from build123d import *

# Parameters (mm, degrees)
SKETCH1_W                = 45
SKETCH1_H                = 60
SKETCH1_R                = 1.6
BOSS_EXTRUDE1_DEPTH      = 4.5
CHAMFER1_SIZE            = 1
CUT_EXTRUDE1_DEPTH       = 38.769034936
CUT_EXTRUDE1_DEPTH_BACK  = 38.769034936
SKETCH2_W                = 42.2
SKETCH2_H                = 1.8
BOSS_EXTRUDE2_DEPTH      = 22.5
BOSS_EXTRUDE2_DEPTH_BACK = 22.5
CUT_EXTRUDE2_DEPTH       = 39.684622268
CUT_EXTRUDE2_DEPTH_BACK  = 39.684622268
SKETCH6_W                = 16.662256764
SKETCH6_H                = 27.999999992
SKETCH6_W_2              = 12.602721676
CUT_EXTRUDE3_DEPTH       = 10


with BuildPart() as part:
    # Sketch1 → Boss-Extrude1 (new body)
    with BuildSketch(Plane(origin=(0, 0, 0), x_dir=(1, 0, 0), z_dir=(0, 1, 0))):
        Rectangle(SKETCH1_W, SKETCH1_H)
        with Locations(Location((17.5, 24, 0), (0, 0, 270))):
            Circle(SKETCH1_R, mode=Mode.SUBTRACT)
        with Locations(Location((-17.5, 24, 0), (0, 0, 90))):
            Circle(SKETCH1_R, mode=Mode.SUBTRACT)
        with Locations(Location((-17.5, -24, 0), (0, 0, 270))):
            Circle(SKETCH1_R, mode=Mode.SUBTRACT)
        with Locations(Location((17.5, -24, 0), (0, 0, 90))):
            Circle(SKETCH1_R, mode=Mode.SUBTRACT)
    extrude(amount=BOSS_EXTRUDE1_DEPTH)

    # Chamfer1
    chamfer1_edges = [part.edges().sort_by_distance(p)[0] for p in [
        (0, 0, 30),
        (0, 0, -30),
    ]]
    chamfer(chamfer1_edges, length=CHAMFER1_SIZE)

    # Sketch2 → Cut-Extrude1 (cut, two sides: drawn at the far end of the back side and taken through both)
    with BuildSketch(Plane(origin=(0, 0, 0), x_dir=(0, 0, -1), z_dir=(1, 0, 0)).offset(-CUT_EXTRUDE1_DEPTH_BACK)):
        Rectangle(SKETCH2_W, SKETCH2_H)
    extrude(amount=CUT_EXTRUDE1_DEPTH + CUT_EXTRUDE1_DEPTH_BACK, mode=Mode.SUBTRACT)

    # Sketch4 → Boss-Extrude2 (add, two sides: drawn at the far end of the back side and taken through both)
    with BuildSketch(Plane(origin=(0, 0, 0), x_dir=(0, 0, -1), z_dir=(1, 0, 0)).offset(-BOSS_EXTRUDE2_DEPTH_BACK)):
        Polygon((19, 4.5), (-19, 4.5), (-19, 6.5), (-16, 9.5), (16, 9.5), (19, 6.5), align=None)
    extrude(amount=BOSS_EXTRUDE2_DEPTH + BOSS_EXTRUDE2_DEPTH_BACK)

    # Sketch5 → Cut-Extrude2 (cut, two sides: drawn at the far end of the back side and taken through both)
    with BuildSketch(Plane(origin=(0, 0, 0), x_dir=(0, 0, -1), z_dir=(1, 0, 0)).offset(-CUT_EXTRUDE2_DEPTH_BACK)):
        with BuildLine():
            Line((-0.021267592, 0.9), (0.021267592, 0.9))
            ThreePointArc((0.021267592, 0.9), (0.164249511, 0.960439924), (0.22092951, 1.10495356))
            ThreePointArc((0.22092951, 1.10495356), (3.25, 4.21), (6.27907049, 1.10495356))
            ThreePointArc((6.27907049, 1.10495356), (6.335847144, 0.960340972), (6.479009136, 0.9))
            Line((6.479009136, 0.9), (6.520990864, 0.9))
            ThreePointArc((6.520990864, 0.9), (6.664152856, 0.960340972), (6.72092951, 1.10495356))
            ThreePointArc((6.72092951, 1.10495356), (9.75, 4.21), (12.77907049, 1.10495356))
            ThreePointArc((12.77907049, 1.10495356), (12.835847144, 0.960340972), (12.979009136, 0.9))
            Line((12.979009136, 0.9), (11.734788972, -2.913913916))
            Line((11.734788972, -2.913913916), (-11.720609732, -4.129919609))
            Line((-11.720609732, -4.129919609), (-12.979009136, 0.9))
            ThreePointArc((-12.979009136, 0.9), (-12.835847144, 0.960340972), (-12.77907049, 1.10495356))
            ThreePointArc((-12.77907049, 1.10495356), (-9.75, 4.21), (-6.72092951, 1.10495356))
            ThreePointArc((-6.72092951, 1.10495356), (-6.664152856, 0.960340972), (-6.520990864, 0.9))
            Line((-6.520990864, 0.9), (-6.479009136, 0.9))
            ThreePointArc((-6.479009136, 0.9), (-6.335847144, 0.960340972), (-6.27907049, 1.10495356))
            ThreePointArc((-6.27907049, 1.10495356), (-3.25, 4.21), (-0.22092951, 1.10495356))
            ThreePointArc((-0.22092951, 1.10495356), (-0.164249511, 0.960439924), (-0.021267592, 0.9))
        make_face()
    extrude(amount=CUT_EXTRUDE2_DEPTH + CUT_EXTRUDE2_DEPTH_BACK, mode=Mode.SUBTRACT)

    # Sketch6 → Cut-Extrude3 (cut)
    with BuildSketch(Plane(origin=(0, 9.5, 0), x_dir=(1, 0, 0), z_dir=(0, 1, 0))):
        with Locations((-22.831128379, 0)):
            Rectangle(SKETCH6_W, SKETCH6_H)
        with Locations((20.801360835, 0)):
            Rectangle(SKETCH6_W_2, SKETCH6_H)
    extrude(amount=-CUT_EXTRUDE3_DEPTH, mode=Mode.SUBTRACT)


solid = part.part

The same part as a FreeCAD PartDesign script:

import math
import FreeCAD as App
import Part
import Sketcher
from FreeCAD import Vector
Q = App.Units.Quantity


def edges_at(feature, points):
    """Names of the edges that pass closest to the given points."""
    edges = feature.Shape.Edges
    near = lambda p: min(range(len(edges)), key=lambda i: edges[i].distToShape(Part.Vertex(*p))[0])
    return sorted({f"Edge{near(p) + 1}" for p in points})

doc = App.newDocument("Part")
body = doc.addObject("PartDesign::Body", "Body")

# Sketch on XZ plane
sketch1 = body.newObject("Sketcher::SketchObject", "Sketch")
sketch1.AttachmentSupport = (doc.getObject("XZ_Plane"), [""])
sketch1.MapMode = "FlatFace"
sketch1.addGeometry([
    Part.LineSegment(Vector(-22.5, -30, 0), Vector(-22.5, 30, 0)),  # 0
    Part.LineSegment(Vector(-22.5, 30, 0), Vector(22.5, 30, 0)),  # 1
    Part.LineSegment(Vector(22.5, 30, 0), Vector(22.5, -30, 0)),  # 2
    Part.LineSegment(Vector(22.5, -30, 0), Vector(-22.5, -30, 0)),  # 3
    Part.Circle(Vector(-17.5, 24, 0), Vector(0, 0, 1), 1.6),  # 4
    Part.Circle(Vector(17.5, 24, 0), Vector(0, 0, 1), 1.6),  # 5
    Part.Circle(Vector(-17.5, -24, 0), Vector(0, 0, 1), 1.6),  # 6
    Part.Circle(Vector(17.5, -24, 0), Vector(0, 0, 1), 1.6),  # 7
], False)
sketch1.addConstraint([
    Sketcher.Constraint("Coincident", 0, 2, 1, 1),
    Sketcher.Constraint("Coincident", 1, 2, 2, 1),
    Sketcher.Constraint("Coincident", 2, 2, 3, 1),
    Sketcher.Constraint("Coincident", 3, 2, 0, 1),
    Sketcher.Constraint("Vertical", 0),
    Sketcher.Constraint("Horizontal", 1),
    Sketcher.Constraint("Vertical", 2),
    Sketcher.Constraint("Horizontal", 3),
    Sketcher.Constraint("Equal", 4, 5),
    Sketcher.Constraint("Equal", 5, 6),
    Sketcher.Constraint("Equal", 6, 7),
    Sketcher.Constraint("Symmetric", 5, 3, 6, 3, -1, 1),
    Sketcher.Constraint("Symmetric", 4, 3, 7, 3, -1, 1),
    Sketcher.Constraint("Symmetric", 0, 2, 2, 2, -1, 1),
    Sketcher.Constraint("Symmetric", 4, 3, 5, 3, -2),
    Sketcher.Constraint("Diameter", 4, Q("3.2 mm")),
    Sketcher.Constraint("DistanceX", 1, 1, 1, 2, Q("45 mm")),
    Sketcher.Constraint("DistanceY", 0, 1, 0, 2, Q("60 mm")),
    Sketcher.Constraint("DistanceY", -1, 1, 4, 3, Q("24 mm")),
    Sketcher.Constraint("DistanceX", 4, 3, 5, 3, Q("35 mm")),
])
pad1 = body.newObject("PartDesign::Pad", "Pad")
pad1.Profile = sketch1
pad1.Length = 4.5
pad1.Reversed = True
doc.recompute()

chamfer = body.newObject("PartDesign::Chamfer", "Chamfer")
chamfer.Base = (pad1, edges_at(pad1, [(0, 0, 30), (0, 0, -30)]))
chamfer.Size = 1

# Sketch on YZ plane
sketch2 = body.newObject("Sketcher::SketchObject", "Sketch001")
sketch2.AttachmentSupport = (doc.getObject("YZ_Plane"), [""])
sketch2.MapMode = "FlatFace"
sketch2.addGeometry([
    Part.LineSegment(Vector(0.9, 21.1, 0), Vector(-0.9, 21.1, 0)),
    Part.LineSegment(Vector(-0.9, 21.1, 0), Vector(-0.9, -21.1, 0)),
    Part.LineSegment(Vector(-0.9, -21.1, 0), Vector(0.9, -21.1, 0)),
    Part.LineSegment(Vector(0.9, -21.1, 0), Vector(0.9, 21.1, 0)),
], False)
sketch2.addConstraint([
    Sketcher.Constraint("Coincident", 0, 2, 1, 1),
    Sketcher.Constraint("Coincident", 1, 2, 2, 1),
    Sketcher.Constraint("Coincident", 2, 2, 3, 1),
    Sketcher.Constraint("Coincident", 3, 2, 0, 1),
    Sketcher.Constraint("Horizontal", 0),
    Sketcher.Constraint("Vertical", 1),
    Sketcher.Constraint("Horizontal", 2),
    Sketcher.Constraint("Vertical", 3),
    Sketcher.Constraint("Symmetric", 0, 2, 2, 2, -1, 1),
    Sketcher.Constraint("DistanceX", 0, 2, 0, 1, Q("1.8 mm")),
    Sketcher.Constraint("DistanceY", 1, 2, 1, 1, Q("42.2 mm")),
])
pocket1 = body.newObject("PartDesign::Pocket", "Pocket")
pocket1.Profile = sketch2
pocket1.Type = "ThroughAll"
pocket1.Midplane = True

# Sketch on YZ plane
sketch3 = body.newObject("Sketcher::SketchObject", "Sketch002")
sketch3.AttachmentSupport = (doc.getObject("YZ_Plane"), [""])
sketch3.MapMode = "FlatFace"
sketch3.addGeometry([
    Part.LineSegment(Vector(4.5, 19, 0), Vector(4.5, -19, 0)),  # 0
    Part.LineSegment(Vector(4.5, -19, 0), Vector(6.5, -19, 0)),  # 1
    Part.LineSegment(Vector(6.5, -19, 0), Vector(9.5, -16, 0)),  # 2
    Part.LineSegment(Vector(9.5, -16, 0), Vector(9.5, 16, 0)),  # 3
    Part.LineSegment(Vector(9.5, 16, 0), Vector(6.5, 19, 0)),  # 4
    Part.LineSegment(Vector(6.5, 19, 0), Vector(4.5, 19, 0)),  # 5
], False)
sketch3.addConstraint([
    Sketcher.Constraint("Coincident", 0, 2, 1, 1),
    Sketcher.Constraint("Coincident", 1, 2, 2, 1),
    Sketcher.Constraint("Coincident", 2, 2, 3, 1),
    Sketcher.Constraint("Coincident", 3, 2, 4, 1),
    Sketcher.Constraint("Coincident", 4, 2, 5, 1),
    Sketcher.Constraint("Coincident", 5, 2, 0, 1),
    Sketcher.Constraint("Vertical", 0),
    Sketcher.Constraint("Horizontal", 1),
    Sketcher.Constraint("Vertical", 3),
    Sketcher.Constraint("Horizontal", 5),
    Sketcher.Constraint("Symmetric", 1, 2, 4, 2, -1),
    Sketcher.Constraint("Perpendicular", 2, 4),
    Sketcher.Constraint("Equal", 2, 4),
    Sketcher.Constraint("DistanceX", 1, 1, 1, 2, Q("2 mm")),
    Sketcher.Constraint("DistanceY", 0, 2, 0, 1, Q("38 mm")),
    Sketcher.Constraint("DistanceY", 3, 1, 3, 2, Q("32 mm")),
    Sketcher.Constraint("DistanceX", -1, 1, 0, 2, Q("4.5 mm")),
])
pad2 = body.newObject("PartDesign::Pad", "Pad001")
pad2.Profile = sketch3
pad2.Type = "TwoLengths"
pad2.Length = 22.5
pad2.Length2 = 22.5

# Sketch on YZ plane
sketch4 = body.newObject("Sketcher::SketchObject", "Sketch003")
sketch4.AttachmentSupport = (doc.getObject("YZ_Plane"), [""])
sketch4.MapMode = "FlatFace"
sketch4.addGeometry([
    Part.LineSegment(Vector(0.9, -0.021268, 0), Vector(0.9, 0.021268, 0)),  # 0
    Part.ArcOfCircle(Part.Circle(Vector(1.1, 0.020991, 0), Vector(0, 0, 1), 0.2), math.radians(88.580709), math.radians(179.920725)),  # 1
    Part.ArcOfCircle(Part.Circle(Vector(1.18, 3.25, 0), Vector(0, 0, 1), 3.03), math.radians(-91.419236), math.radians(91.419236)),  # 2
    Part.ArcOfCircle(Part.Circle(Vector(1.1, 6.479009, 0), Vector(0, 0, 1), 0.2), math.radians(180), math.radians(271.419236)),  # 3
    Part.LineSegment(Vector(0.9, 6.479009, 0), Vector(0.9, 6.520991, 0)),  # 4
    Part.ArcOfCircle(Part.Circle(Vector(1.1, 6.520991, 0), Vector(0, 0, 1), 0.2), math.radians(88.580764), math.radians(180)),  # 5
    Part.ArcOfCircle(Part.Circle(Vector(1.18, 9.75, 0), Vector(0, 0, 1), 3.03), math.radians(-91.419236), math.radians(91.419236)),  # 6
    Part.ArcOfCircle(Part.Circle(Vector(1.1, 12.979009, 0), Vector(0, 0, 1), 0.2), math.radians(180), math.radians(271.419236)),  # 7
    Part.LineSegment(Vector(0.9, 12.979009, 0), Vector(-4.12992, 11.72061, 0)),  # 8
    Part.LineSegment(Vector(-4.12992, 11.72061, 0), Vector(-2.913914, -11.734789, 0)),  # 9
    Part.LineSegment(Vector(-2.913914, -11.734789, 0), Vector(0.9, -12.979009, 0)),  # 10
    Part.ArcOfCircle(Part.Circle(Vector(1.1, -12.979009, 0), Vector(0, 0, 1), 0.2), math.radians(88.580764), math.radians(180)),  # 11
    Part.ArcOfCircle(Part.Circle(Vector(1.18, -9.75, 0), Vector(0, 0, 1), 3.03), math.radians(-91.419236), math.radians(91.419236)),  # 12
    Part.ArcOfCircle(Part.Circle(Vector(1.1, -6.520991, 0), Vector(0, 0, 1), 0.2), math.radians(180), math.radians(271.419236)),  # 13
    Part.LineSegment(Vector(0.9, -6.520991, 0), Vector(0.9, -6.479009, 0)),  # 14
    Part.ArcOfCircle(Part.Circle(Vector(1.1, -6.479009, 0), Vector(0, 0, 1), 0.2), math.radians(88.580764), math.radians(180)),  # 15
    Part.ArcOfCircle(Part.Circle(Vector(1.18, -3.25, 0), Vector(0, 0, 1), 3.03), math.radians(-91.419236), math.radians(91.419236)),  # 16
    Part.ArcOfCircle(Part.Circle(Vector(1.1, -0.020991, 0), Vector(0, 0, 1), 0.2), math.radians(-179.920725), math.radians(-88.580709)),  # 17
], False)
sketch4.addConstraint([
    Sketcher.Constraint("Coincident", 0, 2, 1, 2),
    Sketcher.Constraint("Tangent", 1, 1, 2, 1),
    Sketcher.Constraint("Tangent", 2, 2, 3, 2),
    Sketcher.Constraint("Tangent", 3, 1, 4, 1),
    Sketcher.Constraint("Tangent", 4, 2, 5, 2),
    Sketcher.Constraint("Tangent", 5, 1, 6, 1),
    Sketcher.Constraint("Tangent", 6, 2, 7, 2),
    Sketcher.Constraint("Coincident", 7, 1, 8, 1),
    Sketcher.Constraint("Coincident", 8, 2, 9, 1),
    Sketcher.Constraint("Coincident", 9, 2, 10, 1),
    Sketcher.Constraint("Coincident", 10, 2, 11, 2),
    Sketcher.Constraint("Tangent", 11, 1, 12, 1),
    Sketcher.Constraint("Tangent", 12, 2, 13, 2),
    Sketcher.Constraint("Tangent", 13, 1, 14, 1),
    Sketcher.Constraint("Tangent", 14, 2, 15, 2),
    Sketcher.Constraint("Tangent", 15, 1, 16, 1),
    Sketcher.Constraint("Tangent", 16, 2, 17, 2),
    Sketcher.Constraint("Coincident", 17, 1, 0, 1),
    Sketcher.Constraint("Vertical", 0),
    Sketcher.Constraint("Vertical", 4),
    Sketcher.Constraint("Vertical", 14),
    Sketcher.Constraint("Equal", 1, 3),
    Sketcher.Constraint("Equal", 3, 5),
    Sketcher.Constraint("Equal", 2, 6),
    Sketcher.Constraint("Equal", 5, 7),
    Sketcher.Constraint("Equal", 7, 11),
    Sketcher.Constraint("Equal", 6, 12),
    Sketcher.Constraint("Equal", 11, 13),
    Sketcher.Constraint("Equal", 13, 15),
    Sketcher.Constraint("Equal", 12, 16),
    Sketcher.Constraint("Equal", 15, 17),
    Sketcher.Constraint("Symmetric", 7, 3, 11, 3, -1),
    Sketcher.Constraint("Symmetric", 5, 3, 13, 3, -1),
    Sketcher.Constraint("Symmetric", 2, 3, 16, 3, -1),
    Sketcher.Constraint("Horizontal", 11, 3, 10, 2),
    Sketcher.Constraint("Vertical", 1, 3, 3, 3),
    Sketcher.Constraint("Vertical", 2, 3, 6, 3),
    Sketcher.Constraint("Vertical", 5, 3, 7, 3),
    Sketcher.Constraint("Radius", 1, Q("0.2 mm")),
    Sketcher.Constraint("Radius", 2, Q("3.03 mm")),
    Sketcher.Constraint("DistanceY", 11, 3, 1, 3, Q("13 mm")),
    Sketcher.Constraint("DistanceX", -1, 1, 1, 3, Q("1.1 mm")),
    Sketcher.Constraint("DistanceY", 1, 3, 5, 3, Q("6.5 mm")),
    Sketcher.Constraint("DistanceX", -1, 1, 2, 3, Q("1.18 mm")),
    Sketcher.Constraint("Distance", 9, Q("23.486898 mm")),
    Sketcher.Constraint("DistanceY", 8, 2, 7, 1, Q("1.258399 mm")),
    Sketcher.Constraint("DistanceY", 8, 2, 7, 3, Q("1.258399 mm")),
    Sketcher.Constraint("DistanceY", 9, 2, 13, 3, Q("5.213798 mm")),
    Sketcher.Constraint("DistanceY", 0, 1, 0, 2, Q("0.042535 mm")),
    Sketcher.Constraint("DistanceX", 8, 2, -1, 1, Q("4.12992 mm")),
    Sketcher.Constraint("DistanceY", 17, 3, 0, 2, Q("0.042258 mm")),
])
pocket2 = body.newObject("PartDesign::Pocket", "Pocket001")
pocket2.Profile = sketch4
pocket2.Type = "ThroughAll"
pocket2.Midplane = True

# Sketch on XZ plane
sketch5 = body.newObject("Sketcher::SketchObject", "Sketch004")
sketch5.AttachmentSupport = (doc.getObject("XZ_Plane"), [""])
sketch5.MapMode = "FlatFace"
sketch5.AttachmentOffset = App.Placement(Vector(0, 0, -9.5), App.Rotation())
sketch5.addGeometry([
    Part.LineSegment(Vector(-31.162257, -14, 0), Vector(-31.162257, 14, 0)),  # 0
    Part.LineSegment(Vector(-31.162257, 14, 0), Vector(-14.5, 14, 0)),  # 1
    Part.LineSegment(Vector(-14.5, 14, 0), Vector(-14.5, -14, 0)),  # 2
    Part.LineSegment(Vector(-14.5, -14, 0), Vector(-31.162257, -14, 0)),  # 3
    Part.LineSegment(Vector(14.5, -14, 0), Vector(14.5, 14, 0)),  # 4
    Part.LineSegment(Vector(14.5, 14, 0), Vector(27.102722, 14, 0)),  # 5
    Part.LineSegment(Vector(27.102722, 14, 0), Vector(27.102722, -14, 0)),  # 6
    Part.LineSegment(Vector(27.102722, -14, 0), Vector(14.5, -14, 0)),  # 7
], False)
sketch5.addConstraint([
    Sketcher.Constraint("Coincident", 0, 2, 1, 1),
    Sketcher.Constraint("Coincident", 1, 2, 2, 1),
    Sketcher.Constraint("Coincident", 2, 2, 3, 1),
    Sketcher.Constraint("Coincident", 3, 2, 0, 1),
    Sketcher.Constraint("Coincident", 4, 2, 5, 1),
    Sketcher.Constraint("Coincident", 5, 2, 6, 1),
    Sketcher.Constraint("Coincident", 6, 2, 7, 1),
    Sketcher.Constraint("Coincident", 7, 2, 4, 1),
    Sketcher.Constraint("Vertical", 0),
    Sketcher.Constraint("Horizontal", 1),
    Sketcher.Constraint("Vertical", 2),
    Sketcher.Constraint("Horizontal", 3),
    Sketcher.Constraint("Vertical", 4),
    Sketcher.Constraint("Horizontal", 5),
    Sketcher.Constraint("Vertical", 6),
    Sketcher.Constraint("Horizontal", 7),
    Sketcher.Constraint("Symmetric", 2, 2, 4, 2, -1, 1),
    Sketcher.Constraint("Horizontal", 1, 2, 4, 2),
    Sketcher.Constraint("Horizontal", 3, 2, 6, 2),
    Sketcher.Constraint("DistanceY", 0, 1, 0, 2, Q("28 mm")),
    Sketcher.Constraint("DistanceX", 1, 2, 4, 2, Q("29 mm")),
    Sketcher.Constraint("DistanceX", 5, 1, 5, 2, Q("12.602722 mm")),
    Sketcher.Constraint("DistanceX", 1, 1, 1, 2, Q("16.662257 mm")),
])
pocket3 = body.newObject("PartDesign::Pocket", "Pocket002")
pocket3.Profile = sketch5
pocket3.Length = 10
pocket3.Reversed = True

doc.recompute()
